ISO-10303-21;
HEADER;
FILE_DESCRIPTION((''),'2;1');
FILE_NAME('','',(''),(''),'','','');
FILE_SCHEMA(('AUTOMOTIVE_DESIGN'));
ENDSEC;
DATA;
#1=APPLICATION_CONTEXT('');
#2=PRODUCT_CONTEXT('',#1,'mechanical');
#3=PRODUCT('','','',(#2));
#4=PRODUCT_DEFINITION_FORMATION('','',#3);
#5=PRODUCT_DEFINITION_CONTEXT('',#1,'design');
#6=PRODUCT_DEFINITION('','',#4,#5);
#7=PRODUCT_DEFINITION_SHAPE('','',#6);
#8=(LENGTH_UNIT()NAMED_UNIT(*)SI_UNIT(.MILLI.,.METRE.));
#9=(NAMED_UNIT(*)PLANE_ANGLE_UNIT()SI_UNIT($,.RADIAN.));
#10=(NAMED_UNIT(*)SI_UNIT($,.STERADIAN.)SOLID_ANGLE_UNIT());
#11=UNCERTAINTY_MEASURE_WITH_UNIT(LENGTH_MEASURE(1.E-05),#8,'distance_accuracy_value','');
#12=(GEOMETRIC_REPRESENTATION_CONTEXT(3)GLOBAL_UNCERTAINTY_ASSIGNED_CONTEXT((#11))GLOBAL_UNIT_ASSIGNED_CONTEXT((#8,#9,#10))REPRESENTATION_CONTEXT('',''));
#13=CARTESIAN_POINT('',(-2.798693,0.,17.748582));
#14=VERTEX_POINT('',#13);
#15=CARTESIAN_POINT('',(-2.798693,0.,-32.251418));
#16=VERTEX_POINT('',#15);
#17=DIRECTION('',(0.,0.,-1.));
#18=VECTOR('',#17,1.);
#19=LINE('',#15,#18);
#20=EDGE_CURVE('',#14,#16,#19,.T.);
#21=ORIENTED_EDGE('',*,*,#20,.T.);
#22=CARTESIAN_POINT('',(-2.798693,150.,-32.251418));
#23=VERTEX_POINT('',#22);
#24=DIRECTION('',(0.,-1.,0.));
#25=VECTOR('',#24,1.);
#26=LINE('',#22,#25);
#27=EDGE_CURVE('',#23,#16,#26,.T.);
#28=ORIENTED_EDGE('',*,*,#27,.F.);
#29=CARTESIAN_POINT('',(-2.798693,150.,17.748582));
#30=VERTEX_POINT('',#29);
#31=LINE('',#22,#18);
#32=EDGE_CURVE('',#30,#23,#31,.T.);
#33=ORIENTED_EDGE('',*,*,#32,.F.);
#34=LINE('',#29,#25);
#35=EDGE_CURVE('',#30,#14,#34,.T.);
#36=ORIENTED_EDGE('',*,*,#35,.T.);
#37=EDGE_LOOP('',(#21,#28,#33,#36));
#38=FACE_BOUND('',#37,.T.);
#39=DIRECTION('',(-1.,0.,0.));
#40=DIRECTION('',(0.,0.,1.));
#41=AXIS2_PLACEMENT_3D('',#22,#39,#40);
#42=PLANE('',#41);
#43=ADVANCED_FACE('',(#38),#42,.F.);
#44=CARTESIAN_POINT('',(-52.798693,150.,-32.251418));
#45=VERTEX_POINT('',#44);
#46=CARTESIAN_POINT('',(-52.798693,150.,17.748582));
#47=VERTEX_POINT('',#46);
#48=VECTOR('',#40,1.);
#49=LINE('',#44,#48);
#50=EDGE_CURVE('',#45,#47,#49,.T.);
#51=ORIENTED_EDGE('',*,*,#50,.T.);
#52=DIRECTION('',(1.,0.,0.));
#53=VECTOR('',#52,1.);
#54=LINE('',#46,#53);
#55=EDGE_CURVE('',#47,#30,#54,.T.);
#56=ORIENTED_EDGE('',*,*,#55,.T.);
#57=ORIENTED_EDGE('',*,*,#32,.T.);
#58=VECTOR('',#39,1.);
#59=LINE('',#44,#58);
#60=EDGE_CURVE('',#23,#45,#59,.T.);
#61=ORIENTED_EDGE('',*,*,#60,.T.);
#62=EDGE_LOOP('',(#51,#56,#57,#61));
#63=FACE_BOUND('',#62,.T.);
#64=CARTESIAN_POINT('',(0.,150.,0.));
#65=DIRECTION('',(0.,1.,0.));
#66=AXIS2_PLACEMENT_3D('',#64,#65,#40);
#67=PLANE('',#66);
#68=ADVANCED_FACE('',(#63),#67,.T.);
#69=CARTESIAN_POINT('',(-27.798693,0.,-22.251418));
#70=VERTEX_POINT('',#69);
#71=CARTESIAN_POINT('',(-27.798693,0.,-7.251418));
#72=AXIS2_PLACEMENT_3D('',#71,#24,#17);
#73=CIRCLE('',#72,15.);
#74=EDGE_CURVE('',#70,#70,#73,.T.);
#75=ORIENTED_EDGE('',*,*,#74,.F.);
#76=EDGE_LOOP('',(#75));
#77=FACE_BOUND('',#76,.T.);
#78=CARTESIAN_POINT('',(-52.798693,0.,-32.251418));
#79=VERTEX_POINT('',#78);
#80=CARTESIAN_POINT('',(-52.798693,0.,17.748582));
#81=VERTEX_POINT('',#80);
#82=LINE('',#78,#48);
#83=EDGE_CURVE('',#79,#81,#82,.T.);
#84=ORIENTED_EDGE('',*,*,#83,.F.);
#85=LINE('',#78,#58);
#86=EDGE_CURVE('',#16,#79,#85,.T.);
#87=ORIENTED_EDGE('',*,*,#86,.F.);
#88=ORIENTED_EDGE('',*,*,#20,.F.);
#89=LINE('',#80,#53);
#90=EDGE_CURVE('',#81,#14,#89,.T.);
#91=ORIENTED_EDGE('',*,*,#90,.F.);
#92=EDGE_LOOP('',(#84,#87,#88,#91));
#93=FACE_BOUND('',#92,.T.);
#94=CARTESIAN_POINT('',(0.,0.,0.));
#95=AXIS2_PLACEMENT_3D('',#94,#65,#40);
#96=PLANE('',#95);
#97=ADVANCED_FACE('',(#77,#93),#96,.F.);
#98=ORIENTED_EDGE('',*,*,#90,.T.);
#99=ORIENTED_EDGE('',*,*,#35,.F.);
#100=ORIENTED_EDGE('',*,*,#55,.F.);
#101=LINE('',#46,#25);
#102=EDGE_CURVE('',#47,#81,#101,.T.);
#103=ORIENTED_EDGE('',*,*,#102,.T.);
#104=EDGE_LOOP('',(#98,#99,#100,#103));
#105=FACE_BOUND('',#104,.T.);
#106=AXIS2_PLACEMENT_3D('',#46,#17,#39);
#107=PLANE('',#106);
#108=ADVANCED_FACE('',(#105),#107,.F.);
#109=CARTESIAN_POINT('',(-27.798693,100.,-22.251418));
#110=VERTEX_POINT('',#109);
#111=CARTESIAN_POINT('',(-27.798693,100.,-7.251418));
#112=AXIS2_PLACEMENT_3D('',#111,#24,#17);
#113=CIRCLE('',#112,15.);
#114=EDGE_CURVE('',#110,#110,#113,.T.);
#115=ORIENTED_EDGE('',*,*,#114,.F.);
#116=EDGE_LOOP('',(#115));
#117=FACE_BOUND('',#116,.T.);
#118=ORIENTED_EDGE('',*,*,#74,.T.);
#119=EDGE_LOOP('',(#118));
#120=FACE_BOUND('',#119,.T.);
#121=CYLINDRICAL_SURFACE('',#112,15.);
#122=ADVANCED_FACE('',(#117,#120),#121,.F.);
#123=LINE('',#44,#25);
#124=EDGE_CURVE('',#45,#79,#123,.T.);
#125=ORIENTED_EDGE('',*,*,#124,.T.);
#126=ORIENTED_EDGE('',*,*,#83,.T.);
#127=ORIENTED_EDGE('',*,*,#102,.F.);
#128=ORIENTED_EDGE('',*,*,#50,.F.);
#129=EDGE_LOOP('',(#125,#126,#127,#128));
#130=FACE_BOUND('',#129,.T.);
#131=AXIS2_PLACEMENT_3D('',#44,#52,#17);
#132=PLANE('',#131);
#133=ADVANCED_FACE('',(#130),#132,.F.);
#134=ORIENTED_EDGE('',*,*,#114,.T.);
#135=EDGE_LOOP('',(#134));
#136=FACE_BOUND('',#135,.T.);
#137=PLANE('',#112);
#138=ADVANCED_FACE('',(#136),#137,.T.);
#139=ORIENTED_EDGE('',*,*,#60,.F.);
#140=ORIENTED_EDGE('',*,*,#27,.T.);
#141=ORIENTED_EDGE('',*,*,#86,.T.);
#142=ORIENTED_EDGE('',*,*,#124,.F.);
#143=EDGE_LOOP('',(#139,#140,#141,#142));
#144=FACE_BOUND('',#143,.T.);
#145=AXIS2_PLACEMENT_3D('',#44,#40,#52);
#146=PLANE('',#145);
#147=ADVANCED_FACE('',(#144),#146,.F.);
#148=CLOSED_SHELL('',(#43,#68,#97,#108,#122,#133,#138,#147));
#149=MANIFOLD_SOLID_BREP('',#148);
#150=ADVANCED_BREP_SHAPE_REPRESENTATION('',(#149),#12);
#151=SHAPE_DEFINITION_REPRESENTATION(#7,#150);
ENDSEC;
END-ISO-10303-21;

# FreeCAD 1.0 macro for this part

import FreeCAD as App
import Part
import Sketcher


def add_polygon(sketch, points):
    """Adds a closed chain of lines whose ends are joined by coincident constraints."""
    first, n = sketch.GeometryCount, len(points)
    for a, b in zip(points, points[1:] + points[:1]):
        sketch.addGeometry(Part.LineSegment(App.Vector(*a, 0), App.Vector(*b, 0)), False)
    for i in range(n):
        sketch.addConstraint(Sketcher.Constraint("Coincident", first + i, 2, first + (i + 1) % n, 1))

doc = App.newDocument("Part")
params = doc.addObject("Spreadsheet::Sheet", "Params")
for row, (alias, value) in enumerate([
    ("sketch1_width", "50 mm"),
    ("pad1_length", "150 mm"),
    ("sketch2_diameter", "30 mm"),
    ("pocket1_length", "100 mm"),
], start=1):
    params.set(f"A{row}", alias)
    params.set(f"B{row}", "=" + value)
    params.setAlias(f"B{row}", alias)

body = doc.addObject("PartDesign::Body", "Body")

sketch1 = body.newObject("Sketcher::SketchObject", "Sketch")
sketch1.AttachmentSupport = (doc.getObject("XZ_Plane"), [""])
sketch1.MapMode = "FlatFace"
add_polygon(sketch1, [(-53, -32), (-53, 18), (-3, 18), (-3, -32)])
sketch1.addConstraint([
    Sketcher.Constraint("Vertical", 0),
    Sketcher.Constraint("Horizontal", 1),
    Sketcher.Constraint("Vertical", 2),
    Sketcher.Constraint("Horizontal", 3),
    Sketcher.Constraint("Equal", 3, 0),
    Sketcher.Constraint("DistanceX", 1, 1, 1, 2, 50.0),
    Sketcher.Constraint("DistanceY", -1, 1, 0, 2, 17.748582),
    Sketcher.Constraint("DistanceX", 0, 2, -1, 1, 52.798693),
])
sketch1.setExpression("Constraints[9]", "Params.sketch1_width")
pad1 = body.newObject("PartDesign::Pad", "Pad")
pad1.Profile = sketch1
pad1.setExpression("Length", "Params.pad1_length")
pad1.Reversed = True

sketch2 = body.newObject("Sketcher::SketchObject", "Sketch001")
sketch2.AttachmentSupport = (doc.getObject("XZ_Plane"), [""])
sketch2.MapMode = "FlatFace"
sketch2.addGeometry(Part.Circle(App.Vector(-28, -7, 0), App.Vector(0, 0, 1), 15), False)
sketch2.addConstraint([
    Sketcher.Constraint("Diameter", 0, 30.0),
    Sketcher.Constraint("DistanceY", 0, 3, -1, 1, 7.251418),
    Sketcher.Constraint("DistanceX", 0, 3, -1, 1, 27.798693),
])
sketch2.setExpression("Constraints[0]", "Params.sketch2_diameter")
pocket1 = body.newObject("PartDesign::Pocket", "Pocket")
pocket1.Profile = sketch2
pocket1.setExpression("Length", "Params.pocket1_length")

doc.recompute()
